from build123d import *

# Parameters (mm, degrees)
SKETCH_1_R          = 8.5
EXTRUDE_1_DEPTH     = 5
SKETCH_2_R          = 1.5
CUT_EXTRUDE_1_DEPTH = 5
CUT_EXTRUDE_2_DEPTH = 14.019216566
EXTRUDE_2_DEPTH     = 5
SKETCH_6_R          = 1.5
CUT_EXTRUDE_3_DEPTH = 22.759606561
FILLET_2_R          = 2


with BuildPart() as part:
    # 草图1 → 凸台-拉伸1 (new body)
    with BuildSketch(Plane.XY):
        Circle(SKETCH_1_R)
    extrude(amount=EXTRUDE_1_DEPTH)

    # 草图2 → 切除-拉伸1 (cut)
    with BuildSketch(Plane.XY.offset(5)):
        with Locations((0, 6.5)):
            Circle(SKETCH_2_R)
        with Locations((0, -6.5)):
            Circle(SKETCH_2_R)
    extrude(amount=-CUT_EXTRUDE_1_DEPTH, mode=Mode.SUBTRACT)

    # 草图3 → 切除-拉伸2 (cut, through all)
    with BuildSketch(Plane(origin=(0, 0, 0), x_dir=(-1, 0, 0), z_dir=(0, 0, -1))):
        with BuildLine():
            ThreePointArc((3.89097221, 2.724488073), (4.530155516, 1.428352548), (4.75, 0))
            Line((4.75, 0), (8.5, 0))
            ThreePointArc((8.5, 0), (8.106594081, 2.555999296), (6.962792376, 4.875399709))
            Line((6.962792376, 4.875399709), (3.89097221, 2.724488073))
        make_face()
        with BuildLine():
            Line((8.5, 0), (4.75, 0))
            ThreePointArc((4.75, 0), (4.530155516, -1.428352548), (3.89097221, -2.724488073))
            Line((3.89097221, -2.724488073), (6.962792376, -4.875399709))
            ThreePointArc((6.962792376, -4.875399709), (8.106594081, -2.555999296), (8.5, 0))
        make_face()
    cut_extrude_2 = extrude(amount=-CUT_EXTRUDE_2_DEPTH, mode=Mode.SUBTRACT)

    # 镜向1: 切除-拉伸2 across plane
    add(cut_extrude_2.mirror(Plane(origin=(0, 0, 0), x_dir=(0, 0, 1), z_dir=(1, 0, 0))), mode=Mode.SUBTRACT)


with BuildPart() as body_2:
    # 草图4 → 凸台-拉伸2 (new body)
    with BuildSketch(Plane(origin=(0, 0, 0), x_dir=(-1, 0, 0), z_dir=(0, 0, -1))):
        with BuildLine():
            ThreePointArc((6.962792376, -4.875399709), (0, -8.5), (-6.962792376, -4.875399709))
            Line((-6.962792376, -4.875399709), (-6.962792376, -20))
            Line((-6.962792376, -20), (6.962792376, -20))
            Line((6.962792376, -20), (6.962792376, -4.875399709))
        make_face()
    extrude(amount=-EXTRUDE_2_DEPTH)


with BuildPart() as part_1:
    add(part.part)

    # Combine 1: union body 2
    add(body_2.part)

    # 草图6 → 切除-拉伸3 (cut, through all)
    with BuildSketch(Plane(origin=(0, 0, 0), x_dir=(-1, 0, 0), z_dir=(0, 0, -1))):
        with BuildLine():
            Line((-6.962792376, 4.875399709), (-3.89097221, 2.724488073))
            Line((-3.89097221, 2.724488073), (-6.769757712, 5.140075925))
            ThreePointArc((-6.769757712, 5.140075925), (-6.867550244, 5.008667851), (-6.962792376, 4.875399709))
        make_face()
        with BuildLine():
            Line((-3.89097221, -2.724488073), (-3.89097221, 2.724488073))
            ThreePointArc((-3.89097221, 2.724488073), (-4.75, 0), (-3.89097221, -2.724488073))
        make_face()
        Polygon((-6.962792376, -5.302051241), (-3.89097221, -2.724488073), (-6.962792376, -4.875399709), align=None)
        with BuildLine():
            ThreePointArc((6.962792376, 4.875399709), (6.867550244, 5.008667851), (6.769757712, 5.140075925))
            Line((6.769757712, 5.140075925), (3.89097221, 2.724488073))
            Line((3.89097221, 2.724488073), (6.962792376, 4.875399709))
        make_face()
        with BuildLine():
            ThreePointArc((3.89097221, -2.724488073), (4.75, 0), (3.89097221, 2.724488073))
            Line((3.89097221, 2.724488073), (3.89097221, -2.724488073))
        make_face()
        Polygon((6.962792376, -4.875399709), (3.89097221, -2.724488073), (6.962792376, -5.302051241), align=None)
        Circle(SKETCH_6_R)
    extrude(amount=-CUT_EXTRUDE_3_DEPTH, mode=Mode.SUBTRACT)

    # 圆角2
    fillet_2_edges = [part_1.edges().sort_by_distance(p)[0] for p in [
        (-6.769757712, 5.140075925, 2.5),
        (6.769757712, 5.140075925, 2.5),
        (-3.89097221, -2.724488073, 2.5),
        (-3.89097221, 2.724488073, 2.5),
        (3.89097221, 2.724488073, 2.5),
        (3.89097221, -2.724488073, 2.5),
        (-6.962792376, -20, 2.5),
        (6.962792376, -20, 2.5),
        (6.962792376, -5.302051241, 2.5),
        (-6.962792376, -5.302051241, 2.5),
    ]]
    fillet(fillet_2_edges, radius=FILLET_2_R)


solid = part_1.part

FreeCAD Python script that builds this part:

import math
import FreeCAD as App
import Part
import Sketcher
Q = App.Units.Quantity


def edges_at(feature, points):
    """Names of the edges that pass closest to the given points."""
    edges = feature.Shape.Edges
    near = lambda p: min(range(len(edges)), key=lambda i: edges[i].distToShape(Part.Vertex(*p))[0])
    return sorted({f"Edge{near(p) + 1}" for p in points})


def add_polygon(sketch, points):
    """Adds a closed chain of lines whose ends are joined by coincident constraints."""
    first, n = sketch.GeometryCount, len(points)
    for a, b in zip(points, points[1:] + points[:1]):
        sketch.addGeometry(Part.LineSegment(App.Vector(*a, 0), App.Vector(*b, 0)), False)
    for i in range(n):
        sketch.addConstraint(Sketcher.Constraint("Coincident", first + i, 2, first + (i + 1) % n, 1))

doc = App.newDocument("Part")
body = doc.addObject("PartDesign::Body", "Body")

# Sketch on XY plane
sketch1 = doc.addObject("Sketcher::SketchObject", "Sketch")
body.addObject(sketch1)
sketch1.AttachmentSupport = (doc.XY_Plane, [""])
sketch1.MapMode = "FlatFace"
sketch1.addGeometry(Part.Circle(App.Vector(0, 0, 0), App.Vector(0, 0, 1), 8), False)
sketch1.addConstraint([
    Sketcher.Constraint("Coincident", 0, 3, -1, 1),
    Sketcher.Constraint("Diameter", 0, 17.0),
])
pad1 = doc.addObject("PartDesign::Pad", "Pad")
body.addObject(pad1)
pad1.Profile = sketch1
pad1.Length = 5

# Sketch on XY plane
sketch2 = doc.addObject("Sketcher::SketchObject", "Sketch001")
body.addObject(sketch2)
sketch2.AttachmentSupport = (doc.XY_Plane, [""])
sketch2.MapMode = "FlatFace"
sketch2.AttachmentOffset = App.Placement(App.Vector(0, 0, 5), App.Rotation())
sketch2.addGeometry([
    Part.Circle(App.Vector(0, 6.5, 0), App.Vector(0, 0, 1), 1.5),
    Part.Circle(App.Vector(0, -6.5, 0), App.Vector(0, 0, 1), 1.5),
], False)
sketch2.addConstraint([
    Sketcher.Constraint("Equal", 0, 1),
    Sketcher.Constraint("Symmetric", 0, 3, 1, 3, -1, 1),
    Sketcher.Constraint("PointOnObject", 0, 3, -2),
    Sketcher.Constraint("Diameter", 0, 3.0),
    Sketcher.Constraint("DistanceY", 1, 3, 0, 3, 13.0),
])
pocket1 = doc.addObject("PartDesign::Pocket", "Pocket")
body.addObject(pocket1)
pocket1.Profile = sketch2
pocket1.Length = 5

# Sketch on XY plane
sketch3 = doc.addObject("Sketcher::SketchObject", "Sketch002")
body.addObject(sketch3)
sketch3.AttachmentSupport = (doc.XY_Plane, [""])
sketch3.MapMode = "FlatFace"
sketch3.addGeometry([
    Part.ArcOfCircle(Part.Circle(App.Vector(0, 0, 0), App.Vector(0, 0, 1), 4.7), math.radians(145), math.radians(180)),  # 0
    Part.ArcOfCircle(Part.Circle(App.Vector(0, 0, 0), App.Vector(0, 0, 1), 4.7), math.radians(180), math.radians(215)),  # 1
    Part.LineSegment(App.Vector(-3.9, -2.7, 0), App.Vector(-7, -4.9, 0)),  # 2
    Part.ArcOfCircle(Part.Circle(App.Vector(0, 0, 0), App.Vector(0, 0, 1), 8.5), math.radians(-180), math.radians(-145)),  # 3
    Part.ArcOfCircle(Part.Circle(App.Vector(0, 0, 0), App.Vector(0, 0, 1), 8.5), math.radians(145), math.radians(180)),  # 4
    Part.LineSegment(App.Vector(-7, 4.9, 0), App.Vector(-3.9, 2.7, 0)),  # 5
], False)
sketch3.addConstraint([
    Sketcher.Constraint("Tangent", 0, 2, 1, 1),
    Sketcher.Constraint("Coincident", 1, 2, 2, 1),
    Sketcher.Constraint("Coincident", 2, 2, 3, 2),
    Sketcher.Constraint("Tangent", 3, 1, 4, 2),
    Sketcher.Constraint("Coincident", 4, 1, 5, 1),
    Sketcher.Constraint("Coincident", 5, 2, 0, 1),
    Sketcher.Constraint("Coincident", 0, 3, -1, 1),
    Sketcher.Constraint("Coincident", 3, 3, -1, 1),
    Sketcher.Constraint("Equal", 0, 1),
    Sketcher.Constraint("Equal", 3, 4),
    Sketcher.Constraint("PointOnObject", 0, 2, -1),
    Sketcher.Constraint("PointOnObject", 3, 1, -1),
    Sketcher.Constraint("Vertical", 2, 2, 4, 1),
    Sketcher.Constraint("Vertical", 1, 2, 5, 2),
    Sketcher.Constraint("Radius", 3, 8.5),
    Sketcher.Constraint("Angle", 2, Q("-145 deg")),
    Sketcher.Constraint("Radius", 0, 4.75),
    Sketcher.Constraint("DistanceY", 2, 2, -1, 1, 4.8754),
])
pocket2 = doc.addObject("PartDesign::Pocket", "Pocket001")
body.addObject(pocket2)
pocket2.Profile = sketch3
pocket2.Type = "ThroughAll"
pocket2.Reversed = True
doc.recompute()

mirrored = doc.addObject("PartDesign::Mirrored", "Mirrored")
body.addObject(mirrored)
mirrored.Originals = [pocket2]
mirrored.MirrorPlane = (doc.YZ_Plane, [""])
body.Tip = mirrored
body2 = doc.addObject("PartDesign::Body", "Body001")

# Sketch on XY plane
sketch4 = doc.addObject("Sketcher::SketchObject", "Sketch003")
body2.addObject(sketch4)
sketch4.AttachmentSupport = (doc.getObject("XY_Plane001"), [""])
sketch4.MapMode = "FlatFace"
sketch4.addGeometry([
    Part.ArcOfCircle(Part.Circle(App.Vector(0, 0, 0), App.Vector(0, 0, 1), 8), math.radians(-145), math.radians(-35)),
    Part.LineSegment(App.Vector(7, -5, 0), App.Vector(7, -20, 0)),
    Part.LineSegment(App.Vector(7, -20, 0), App.Vector(-7, -20, 0)),
    Part.LineSegment(App.Vector(-7, -20, 0), App.Vector(-7, -5, 0)),
], False)
sketch4.addConstraint([
    Sketcher.Constraint("Coincident", 0, 2, 1, 1),
    Sketcher.Constraint("Coincident", 1, 2, 2, 1),
    Sketcher.Constraint("Coincident", 2, 2, 3, 1),
    Sketcher.Constraint("Coincident", 3, 2, 0, 1),
    Sketcher.Constraint("Vertical", 1),
    Sketcher.Constraint("Horizontal", 2),
    Sketcher.Constraint("Vertical", 3),
    Sketcher.Constraint("Coincident", 0, 3, -1, 1),
    Sketcher.Constraint("Horizontal", 0, 2, 3, 2),
    Sketcher.Constraint("Radius", 0, 8.5),
    Sketcher.Constraint("DistanceY", 1, 2, -1, 1, 20.0),
    Sketcher.Constraint("DistanceY", 1, 2, 1, 1, 15.1246),
])
pad2 = doc.addObject("PartDesign::Pad", "Pad001")
body2.addObject(pad2)
pad2.Profile = sketch4
pad2.Length = 5
doc.recompute()

boolean = doc.addObject("PartDesign::Boolean", "Boolean")
body.addObject(boolean)
boolean.Type = "Fuse"
boolean.addObjects([body2])

# Sketch on XY plane
sketch5 = doc.addObject("Sketcher::SketchObject", "Sketch004")
body.addObject(sketch5)
sketch5.AttachmentSupport = (doc.XY_Plane, [""])
sketch5.MapMode = "FlatFace"
sketch5.addGeometry(Part.LineSegment(App.Vector(6.96, 4.88, 0), App.Vector(3.89, 2.72, 0)), False)  # 0
sketch5.addGeometry(Part.LineSegment(App.Vector(3.89, 2.72, 0), App.Vector(6.77, 5.14, 0)), False)  # 1
sketch5.addGeometry(Part.ArcOfCircle(Part.Circle(App.Vector(0, 0, 0), App.Vector(0, 0, 1), 8.5), math.radians(35), math.radians(37.21)), False)  # 2
sketch5.addGeometry(Part.LineSegment(App.Vector(3.89, -2.72, 0), App.Vector(3.89, 2.72, 0)), False)  # 3
sketch5.addGeometry(Part.ArcOfCircle(Part.Circle(App.Vector(0, 0, 0), App.Vector(0, 0, 1), 4.75), math.radians(-35), math.radians(35)), False)  # 4
add_polygon(sketch5, [(6.96, -5.3), (3.89, -2.72), (6.96, -4.88)])  # lines 5-7
sketch5.addGeometry(Part.ArcOfCircle(Part.Circle(App.Vector(0, 0, 0), App.Vector(0, 0, 1), 8.5), math.radians(142.79), math.radians(145)), False)  # 8
sketch5.addGeometry(Part.LineSegment(App.Vector(-6.77, 5.14, 0), App.Vector(-3.89, 2.72, 0)), False)  # 9
sketch5.addGeometry(Part.LineSegment(App.Vector(-3.89, 2.72, 0), App.Vector(-6.96, 4.88, 0)), False)  # 10
sketch5.addGeometry(Part.ArcOfCircle(Part.Circle(App.Vector(0, 0, 0), App.Vector(0, 0, 1), 4.75), math.radians(145), math.radians(215)), False)  # 11
sketch5.addGeometry(Part.LineSegment(App.Vector(-3.89, 2.72, 0), App.Vector(-3.89, -2.72, 0)), False)  # 12
add_polygon(sketch5, [(-6.96, -4.88), (-3.89, -2.72), (-6.96, -5.3)])  # lines 13-15
sketch5.addGeometry(Part.Circle(App.Vector(0, 0, 0), App.Vector(0, 0, 1), 1.5), False)  # 16
sketch5.addConstraint([
    Sketcher.Constraint("Coincident", 0, 2, 1, 1),
    Sketcher.Constraint("Coincident", 1, 2, 2, 2),
    Sketcher.Constraint("Coincident", 2, 1, 0, 1),
    Sketcher.Constraint("Coincident", 3, 1, 4, 1),
    Sketcher.Constraint("Coincident", 4, 2, 3, 2),
    Sketcher.Constraint("Coincident", 8, 1, 9, 1),
    Sketcher.Constraint("Coincident", 9, 2, 10, 1),
    Sketcher.Constraint("Coincident", 10, 2, 8, 2),
    Sketcher.Constraint("Coincident", 11, 1, 12, 1),
    Sketcher.Constraint("Coincident", 12, 2, 11, 2),
    Sketcher.Constraint("Vertical", 3),
    Sketcher.Constraint("Vertical", 7),
    Sketcher.Constraint("Vertical", 12),
    Sketcher.Constraint("Vertical", 15),
    Sketcher.Constraint("Coincident", 2, 3, -1, 1),
    Sketcher.Constraint("Coincident", 4, 3, -1, 1),
    Sketcher.Constraint("Coincident", 8, 3, -1, 1),
    Sketcher.Constraint("Coincident", 11, 3, -1, 1),
    Sketcher.Constraint("Coincident", 16, 3, -1, 1),
    Sketcher.Constraint("Coincident", 4, 2, 0, 2),
    Sketcher.Constraint("Coincident", 5, 2, 3, 1),
    Sketcher.Constraint("Coincident", 11, 1, 9, 2),
    Sketcher.Constraint("Coincident", 13, 2, 12, 2),
    Sketcher.Constraint("Equal", 2, 8),
    Sketcher.Constraint("Equal", 4, 11),
    Sketcher.Constraint("Symmetric", 6, 2, 10, 2, -1, 1),
    Sketcher.Constraint("Symmetric", 2, 1, 15, 2, -1, 1),
    Sketcher.Constraint("Symmetric", 7, 2, 14, 2, -2),
    Sketcher.Constraint("Parallel", 5, 9),
    Sketcher.Constraint("Parallel", 6, 10),
    Sketcher.Constraint("Parallel", 1, 14),
    Sketcher.Constraint("Diameter", 16, 3.0),
    Sketcher.Constraint("Radius", 2, 8.499999),
    Sketcher.Constraint("Angle", 0, Q("-145 deg")),
    Sketcher.Constraint("Angle", 1, Q("40 deg")),
    Sketcher.Constraint("Radius", 4, 4.75),
    Sketcher.Constraint("DistanceY", -1, 1, 2, 1, 4.8754),
])
pocket3 = doc.addObject("PartDesign::Pocket", "Pocket002")
body.addObject(pocket3)
pocket3.Profile = sketch5
pocket3.Type = "ThroughAll"
pocket3.Reversed = True
doc.recompute()

fillet = doc.addObject("PartDesign::Fillet", "Fillet")
body.addObject(fillet)
fillet.Base = (pocket3, edges_at(pocket3, [
    (-6.77, 5.14, 2.5),
    (6.77, 5.14, 2.5),
    (-3.891, -2.724, 2.5),
    (-3.891, 2.724, 2.5),
    (3.891, 2.724, 2.5),
    (3.891, -2.724, 2.5),
    (-6.963, -20, 2.5),
    (6.963, -20, 2.5),
    (6.963, -5.302, 2.5),
    (-6.963, -5.302, 2.5),
]))
fillet.Radius = 2

doc.recompute()
